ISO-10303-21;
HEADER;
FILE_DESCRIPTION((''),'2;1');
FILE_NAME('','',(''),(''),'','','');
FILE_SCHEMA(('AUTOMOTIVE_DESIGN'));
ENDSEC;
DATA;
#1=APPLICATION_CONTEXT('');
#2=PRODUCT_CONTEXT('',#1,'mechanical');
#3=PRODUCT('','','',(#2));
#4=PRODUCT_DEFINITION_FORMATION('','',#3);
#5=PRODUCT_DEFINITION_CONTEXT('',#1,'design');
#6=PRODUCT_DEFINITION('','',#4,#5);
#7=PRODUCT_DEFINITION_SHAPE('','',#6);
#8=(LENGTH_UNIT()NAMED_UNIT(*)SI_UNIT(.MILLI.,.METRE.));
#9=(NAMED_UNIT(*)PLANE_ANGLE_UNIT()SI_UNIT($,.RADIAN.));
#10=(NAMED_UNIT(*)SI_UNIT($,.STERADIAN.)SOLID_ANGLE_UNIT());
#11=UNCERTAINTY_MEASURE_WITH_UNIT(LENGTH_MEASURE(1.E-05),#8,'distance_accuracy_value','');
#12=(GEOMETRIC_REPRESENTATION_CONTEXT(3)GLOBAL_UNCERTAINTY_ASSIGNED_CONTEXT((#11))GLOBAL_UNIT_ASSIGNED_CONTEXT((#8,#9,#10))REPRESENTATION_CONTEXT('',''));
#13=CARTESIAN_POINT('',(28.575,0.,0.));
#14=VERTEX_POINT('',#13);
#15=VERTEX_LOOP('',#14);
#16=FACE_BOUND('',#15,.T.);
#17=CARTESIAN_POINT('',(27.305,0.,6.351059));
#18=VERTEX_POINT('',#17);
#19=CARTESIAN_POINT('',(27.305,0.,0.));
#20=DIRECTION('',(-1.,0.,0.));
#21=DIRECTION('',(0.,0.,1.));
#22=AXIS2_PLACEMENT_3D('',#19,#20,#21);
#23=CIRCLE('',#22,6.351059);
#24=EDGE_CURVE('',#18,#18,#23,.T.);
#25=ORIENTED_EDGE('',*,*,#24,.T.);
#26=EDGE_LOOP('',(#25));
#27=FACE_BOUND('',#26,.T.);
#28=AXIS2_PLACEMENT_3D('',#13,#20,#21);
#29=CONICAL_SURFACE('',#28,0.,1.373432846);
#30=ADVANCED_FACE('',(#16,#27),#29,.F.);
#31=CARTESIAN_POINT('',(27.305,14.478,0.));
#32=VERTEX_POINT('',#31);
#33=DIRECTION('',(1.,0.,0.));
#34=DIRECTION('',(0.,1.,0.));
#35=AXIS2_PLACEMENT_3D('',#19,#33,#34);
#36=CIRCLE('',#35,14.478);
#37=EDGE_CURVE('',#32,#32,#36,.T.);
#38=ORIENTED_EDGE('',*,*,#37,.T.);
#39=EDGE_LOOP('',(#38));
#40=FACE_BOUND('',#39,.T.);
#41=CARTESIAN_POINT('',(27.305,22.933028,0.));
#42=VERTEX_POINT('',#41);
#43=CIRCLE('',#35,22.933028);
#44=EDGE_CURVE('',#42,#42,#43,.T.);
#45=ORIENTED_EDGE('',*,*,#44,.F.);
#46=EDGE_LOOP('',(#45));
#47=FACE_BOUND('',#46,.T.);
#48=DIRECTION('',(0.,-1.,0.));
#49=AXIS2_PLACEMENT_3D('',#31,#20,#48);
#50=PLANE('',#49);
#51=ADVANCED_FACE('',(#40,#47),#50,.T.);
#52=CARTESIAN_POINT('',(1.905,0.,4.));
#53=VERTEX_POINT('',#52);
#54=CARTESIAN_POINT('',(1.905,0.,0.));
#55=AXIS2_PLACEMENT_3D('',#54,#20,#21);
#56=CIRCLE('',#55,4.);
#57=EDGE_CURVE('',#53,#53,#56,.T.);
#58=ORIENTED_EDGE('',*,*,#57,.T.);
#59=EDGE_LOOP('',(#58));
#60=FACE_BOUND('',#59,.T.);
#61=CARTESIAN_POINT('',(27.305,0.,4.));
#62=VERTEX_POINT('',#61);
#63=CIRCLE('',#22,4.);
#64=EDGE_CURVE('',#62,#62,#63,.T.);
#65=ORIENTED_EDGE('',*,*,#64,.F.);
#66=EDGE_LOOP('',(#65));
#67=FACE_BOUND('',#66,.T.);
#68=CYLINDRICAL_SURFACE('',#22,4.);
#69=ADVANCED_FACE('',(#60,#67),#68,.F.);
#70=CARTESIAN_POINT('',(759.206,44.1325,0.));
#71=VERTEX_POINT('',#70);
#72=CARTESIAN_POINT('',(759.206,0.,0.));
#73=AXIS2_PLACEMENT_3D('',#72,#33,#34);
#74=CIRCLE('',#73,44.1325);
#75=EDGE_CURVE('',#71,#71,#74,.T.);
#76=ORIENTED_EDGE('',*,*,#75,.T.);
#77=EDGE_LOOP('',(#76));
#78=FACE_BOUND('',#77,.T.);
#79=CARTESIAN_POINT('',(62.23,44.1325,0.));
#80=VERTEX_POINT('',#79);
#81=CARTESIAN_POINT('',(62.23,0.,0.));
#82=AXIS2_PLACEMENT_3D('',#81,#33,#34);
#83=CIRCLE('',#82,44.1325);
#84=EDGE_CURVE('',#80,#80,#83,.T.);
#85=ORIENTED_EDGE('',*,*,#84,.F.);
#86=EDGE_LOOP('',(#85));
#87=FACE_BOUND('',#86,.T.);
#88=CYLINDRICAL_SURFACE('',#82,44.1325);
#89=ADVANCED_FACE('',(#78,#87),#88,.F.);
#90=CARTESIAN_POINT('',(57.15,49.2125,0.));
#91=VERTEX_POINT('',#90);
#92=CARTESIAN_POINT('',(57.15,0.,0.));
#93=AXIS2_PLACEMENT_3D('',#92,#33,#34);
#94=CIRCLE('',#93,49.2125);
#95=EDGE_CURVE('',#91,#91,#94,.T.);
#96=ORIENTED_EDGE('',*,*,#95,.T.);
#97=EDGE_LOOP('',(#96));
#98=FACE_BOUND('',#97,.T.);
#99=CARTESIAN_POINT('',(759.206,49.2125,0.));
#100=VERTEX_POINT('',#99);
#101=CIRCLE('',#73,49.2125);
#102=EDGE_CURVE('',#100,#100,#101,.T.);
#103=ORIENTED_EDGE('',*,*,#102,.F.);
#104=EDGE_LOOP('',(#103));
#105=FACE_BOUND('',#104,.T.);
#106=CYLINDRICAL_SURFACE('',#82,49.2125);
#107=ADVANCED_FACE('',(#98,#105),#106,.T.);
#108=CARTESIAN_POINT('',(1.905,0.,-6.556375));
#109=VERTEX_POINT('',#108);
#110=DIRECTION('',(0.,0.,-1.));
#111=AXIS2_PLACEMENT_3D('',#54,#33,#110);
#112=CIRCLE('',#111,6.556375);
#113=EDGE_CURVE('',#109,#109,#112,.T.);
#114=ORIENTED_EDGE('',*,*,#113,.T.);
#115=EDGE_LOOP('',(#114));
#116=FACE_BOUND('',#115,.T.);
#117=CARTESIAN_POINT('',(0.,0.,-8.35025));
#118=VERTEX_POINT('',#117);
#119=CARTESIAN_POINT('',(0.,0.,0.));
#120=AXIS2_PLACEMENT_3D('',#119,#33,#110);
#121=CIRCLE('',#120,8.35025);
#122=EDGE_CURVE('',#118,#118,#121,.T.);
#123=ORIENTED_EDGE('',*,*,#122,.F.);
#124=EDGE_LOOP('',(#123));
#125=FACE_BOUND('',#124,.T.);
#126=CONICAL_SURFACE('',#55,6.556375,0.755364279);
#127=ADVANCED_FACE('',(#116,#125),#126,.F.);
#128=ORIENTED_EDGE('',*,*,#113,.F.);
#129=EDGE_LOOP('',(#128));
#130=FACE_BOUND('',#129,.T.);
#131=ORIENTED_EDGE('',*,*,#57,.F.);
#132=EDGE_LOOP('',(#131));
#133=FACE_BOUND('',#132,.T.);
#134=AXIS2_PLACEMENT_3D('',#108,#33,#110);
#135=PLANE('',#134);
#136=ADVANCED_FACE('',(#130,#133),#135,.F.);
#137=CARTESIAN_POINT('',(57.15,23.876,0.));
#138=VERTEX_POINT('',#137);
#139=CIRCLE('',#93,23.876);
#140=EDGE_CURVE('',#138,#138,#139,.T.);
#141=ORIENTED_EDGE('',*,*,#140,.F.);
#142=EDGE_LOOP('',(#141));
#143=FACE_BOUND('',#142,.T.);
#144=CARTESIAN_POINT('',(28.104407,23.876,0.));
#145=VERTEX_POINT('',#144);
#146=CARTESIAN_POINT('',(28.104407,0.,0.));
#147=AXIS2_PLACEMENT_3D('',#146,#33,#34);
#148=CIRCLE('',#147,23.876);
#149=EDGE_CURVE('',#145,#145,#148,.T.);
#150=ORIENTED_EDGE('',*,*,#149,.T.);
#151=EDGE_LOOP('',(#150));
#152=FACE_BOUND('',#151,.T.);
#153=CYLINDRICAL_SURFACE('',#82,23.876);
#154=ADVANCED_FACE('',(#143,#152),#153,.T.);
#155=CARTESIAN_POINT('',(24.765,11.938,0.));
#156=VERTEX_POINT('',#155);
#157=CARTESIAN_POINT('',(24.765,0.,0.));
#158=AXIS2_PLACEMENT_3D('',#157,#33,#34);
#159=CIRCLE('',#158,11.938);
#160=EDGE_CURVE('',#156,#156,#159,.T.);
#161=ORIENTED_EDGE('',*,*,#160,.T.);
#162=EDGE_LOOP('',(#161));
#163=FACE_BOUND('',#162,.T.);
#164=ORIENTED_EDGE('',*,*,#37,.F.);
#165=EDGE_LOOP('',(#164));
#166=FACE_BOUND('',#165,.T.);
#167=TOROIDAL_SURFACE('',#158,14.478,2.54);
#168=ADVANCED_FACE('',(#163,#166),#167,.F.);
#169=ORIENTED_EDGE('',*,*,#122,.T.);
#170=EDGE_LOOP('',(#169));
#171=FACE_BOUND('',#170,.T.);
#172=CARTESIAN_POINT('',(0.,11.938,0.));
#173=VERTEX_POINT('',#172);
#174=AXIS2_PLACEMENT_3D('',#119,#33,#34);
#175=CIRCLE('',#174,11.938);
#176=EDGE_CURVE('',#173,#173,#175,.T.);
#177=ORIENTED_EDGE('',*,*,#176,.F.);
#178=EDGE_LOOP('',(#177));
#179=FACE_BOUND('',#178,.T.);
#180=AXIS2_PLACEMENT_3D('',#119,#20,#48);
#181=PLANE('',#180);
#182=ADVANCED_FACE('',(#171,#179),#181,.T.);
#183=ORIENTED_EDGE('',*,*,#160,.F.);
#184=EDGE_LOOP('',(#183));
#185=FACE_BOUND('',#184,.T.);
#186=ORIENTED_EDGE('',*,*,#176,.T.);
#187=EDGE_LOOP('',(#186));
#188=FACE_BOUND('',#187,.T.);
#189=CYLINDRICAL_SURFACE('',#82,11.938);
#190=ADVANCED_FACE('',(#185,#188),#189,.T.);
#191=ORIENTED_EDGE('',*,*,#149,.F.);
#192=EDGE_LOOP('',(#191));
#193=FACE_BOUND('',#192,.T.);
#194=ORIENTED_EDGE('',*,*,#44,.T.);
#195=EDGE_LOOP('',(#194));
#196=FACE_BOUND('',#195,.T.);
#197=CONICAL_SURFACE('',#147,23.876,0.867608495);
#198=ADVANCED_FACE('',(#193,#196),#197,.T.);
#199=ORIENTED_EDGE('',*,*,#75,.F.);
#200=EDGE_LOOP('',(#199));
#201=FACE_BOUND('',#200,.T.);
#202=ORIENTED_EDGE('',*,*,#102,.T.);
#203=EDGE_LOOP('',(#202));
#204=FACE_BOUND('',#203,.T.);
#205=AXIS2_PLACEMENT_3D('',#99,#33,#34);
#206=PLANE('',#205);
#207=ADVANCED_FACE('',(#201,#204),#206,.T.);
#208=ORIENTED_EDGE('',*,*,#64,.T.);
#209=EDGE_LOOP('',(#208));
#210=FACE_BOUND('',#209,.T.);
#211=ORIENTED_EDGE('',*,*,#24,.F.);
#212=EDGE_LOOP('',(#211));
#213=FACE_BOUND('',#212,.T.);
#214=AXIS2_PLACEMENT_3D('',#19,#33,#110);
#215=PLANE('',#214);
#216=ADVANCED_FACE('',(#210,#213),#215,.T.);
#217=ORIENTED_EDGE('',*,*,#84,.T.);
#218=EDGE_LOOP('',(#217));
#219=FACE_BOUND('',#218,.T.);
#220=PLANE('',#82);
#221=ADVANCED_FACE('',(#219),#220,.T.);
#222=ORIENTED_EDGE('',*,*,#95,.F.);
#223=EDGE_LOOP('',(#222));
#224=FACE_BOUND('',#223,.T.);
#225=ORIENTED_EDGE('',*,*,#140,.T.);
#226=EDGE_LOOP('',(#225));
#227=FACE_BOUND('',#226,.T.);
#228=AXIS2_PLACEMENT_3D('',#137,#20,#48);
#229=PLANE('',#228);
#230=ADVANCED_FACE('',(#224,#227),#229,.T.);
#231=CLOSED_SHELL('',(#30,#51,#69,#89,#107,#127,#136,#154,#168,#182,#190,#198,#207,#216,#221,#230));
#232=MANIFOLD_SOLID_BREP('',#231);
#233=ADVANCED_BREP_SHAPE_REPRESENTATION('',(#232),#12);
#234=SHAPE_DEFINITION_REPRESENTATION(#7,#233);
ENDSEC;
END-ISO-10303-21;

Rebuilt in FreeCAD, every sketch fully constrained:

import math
import FreeCAD as App
import Part
import Sketcher

V = App.Vector
Q = App.Units.Quantity


def add_polygon(sketch, points):
    """Adds a closed chain of lines whose ends are joined by coincident constraints."""
    first, n = sketch.GeometryCount, len(points)
    for a, b in zip(points, points[1:] + points[:1]):
        sketch.addGeometry(Part.LineSegment(App.Vector(*a, 0), App.Vector(*b, 0)), False)
    for i in range(n):
        sketch.addConstraint(Sketcher.Constraint("Coincident", first + i, 2, first + (i + 1) % n, 1))

doc = App.newDocument("Part")
body = doc.addObject("PartDesign::Body", "Body")

sketch1 = body.newObject("Sketcher::SketchObject", "Sketch")
sketch1.AttachmentSupport = (doc.getObject("XY_Plane"), [""])
sketch1.MapMode = "FlatFace"
sketch1.addGeometry([
    Part.LineSegment(V(0, 11.938, 0), V(0, 0, 0)),
    Part.LineSegment(V(0, 0, 0), V(62.23, 0, 0)),
    Part.LineSegment(V(62.23, 0, 0), V(62.23, 44.1325, 0)),
    Part.LineSegment(V(62.23, 44.1325, 0), V(759.206, 44.1325, 0)),
    Part.LineSegment(V(759.206, 44.1325, 0), V(759.206, 49.2125, 0)),
    Part.LineSegment(V(759.206, 49.2125, 0), V(57.15, 49.2125, 0)),
    Part.LineSegment(V(57.15, 49.2125, 0), V(57.15, 23.876, 0)),
    Part.LineSegment(V(57.15, 23.876, 0), V(28.104407, 23.876, 0)),
    Part.LineSegment(V(28.104407, 23.876, 0), V(27.305, 22.933028, 0)),
    Part.LineSegment(V(27.305, 22.933028, 0), V(27.305, 14.478, 0)),
    Part.ArcOfCircle(Part.Circle(V(24.765, 14.478, 0), V(0, 0, 1), 2.54), math.radians(-90), math.radians(0)),
    Part.LineSegment(V(24.765, 11.938, 0), V(0, 11.938, 0)),
], False)
sketch1.addConstraint([
    Sketcher.Constraint("Coincident", 0, 2, 1, 1),
    Sketcher.Constraint("Coincident", 1, 2, 2, 1),
    Sketcher.Constraint("Coincident", 2, 2, 3, 1),
    Sketcher.Constraint("Coincident", 3, 2, 4, 1),
    Sketcher.Constraint("Coincident", 4, 2, 5, 1),
    Sketcher.Constraint("Coincident", 5, 2, 6, 1),
    Sketcher.Constraint("Coincident", 6, 2, 7, 1),
    Sketcher.Constraint("Coincident", 7, 2, 8, 1),
    Sketcher.Constraint("Coincident", 8, 2, 9, 1),
    Sketcher.Constraint("Tangent", 9, 2, 10, 2),
    Sketcher.Constraint("Tangent", 10, 1, 11, 1),
    Sketcher.Constraint("Coincident", 11, 2, 0, 1),
    Sketcher.Constraint("Vertical", 0),
    Sketcher.Constraint("Horizontal", 1),
    Sketcher.Constraint("Vertical", 2),
    Sketcher.Constraint("Horizontal", 3),
    Sketcher.Constraint("Vertical", 4),
    Sketcher.Constraint("Horizontal", 5),
    Sketcher.Constraint("Vertical", 6),
    Sketcher.Constraint("Horizontal", 7),
    Sketcher.Constraint("Vertical", 9),
    Sketcher.Constraint("Horizontal", 11),
    Sketcher.Constraint("Coincident", 0, 2, -1, 1),
    Sketcher.Constraint("Radius", 10, Q("0.1 in")),
    Sketcher.Constraint("DistanceY", 4, 1, 4, 2, Q("0.2 in")),
    Sketcher.Constraint("DistanceX", 1, 1, 1, 2, Q("2.45 in")),
    Sketcher.Constraint("DistanceX", 3, 1, 3, 2, Q("27.44 in")),
    Sketcher.Constraint("DistanceX", 5, 2, 5, 1, Q("27.64 in")),
    Sketcher.Constraint("DistanceY", 0, 2, 0, 1, Q("0.47 in")),
    Sketcher.Constraint("DistanceX", 11, 2, 11, 1, Q("0.975 in")),
    Sketcher.Constraint("DistanceY", -1, 1, 6, 2, Q("0.94 in")),
    Sketcher.Constraint("DistanceY", 2, 1, 2, 2, Q("1.7375 in")),
    Sketcher.Constraint("DistanceY", 9, 2, 9, 1, Q("8.455028 mm")),
    Sketcher.Constraint("DistanceX", 7, 2, 7, 1, Q("29.045593 mm")),
])
revolution = body.newObject("PartDesign::Revolution", "Revolution")
revolution.Profile = sketch1
revolution.ReferenceAxis = (sketch1, ["H_Axis"])
revolution.Angle = 360

sketch2 = body.newObject("Sketcher::SketchObject", "Sketch001")
sketch2.AttachmentSupport = (doc.getObject("XZ_Plane"), [""])
sketch2.MapMode = "FlatFace"
add_polygon(sketch2, [(0, -8.35025), (0, 0), (1.905, 0), (1.905, -6.556375)])
sketch2.addConstraint([
    Sketcher.Constraint("Vertical", 0),
    Sketcher.Constraint("Horizontal", 1),
    Sketcher.Constraint("Vertical", 2),
    Sketcher.Constraint("Coincident", 0, 2, -1, 1),
    Sketcher.Constraint("DistanceX", 1, 1, 1, 2, Q("0.075 in")),
    Sketcher.Constraint("DistanceY", 0, 1, 0, 2, Q("8.35025 mm")),
    Sketcher.Constraint("Distance", 3, Q("2.61668 mm")),
])
groove = body.newObject("PartDesign::Groove", "Groove")
groove.Profile = sketch2
groove.ReferenceAxis = (sketch2, ["H_Axis"])
groove.Angle = 360

sketch3 = body.newObject("Sketcher::SketchObject", "Sketch002")
sketch3.AttachmentSupport = (doc.getObject("YZ_Plane"), [""])
sketch3.MapMode = "FlatFace"
sketch3.AttachmentOffset = App.Placement(V(0, 0, 0.075 * 25.4), App.Rotation())
sketch3.addGeometry(Part.Circle(V(0, 0, 0), V(0, 0, 1), 4), False)
sketch3.addConstraint([
    Sketcher.Constraint("Coincident", 0, 3, -1, 1),
    Sketcher.Constraint("Diameter", 0, Q("8 mm")),
])
pocket1 = body.newObject("PartDesign::Pocket", "Pocket")
pocket1.Profile = sketch3
pocket1.Length = Q("1 in")
pocket1.Reversed = True

sketch4 = body.newObject("Sketcher::SketchObject", "Sketch003")
sketch4.AttachmentSupport = (doc.getObject("XZ_Plane"), [""])
sketch4.MapMode = "FlatFace"
add_polygon(sketch4, [(27.305, 0), (28.575, 0), (27.305, -6.351059)])
sketch4.addConstraint([
    Sketcher.Constraint("Horizontal", 0),
    Sketcher.Constraint("Vertical", 2),
    Sketcher.Constraint("PointOnObject", 0, 2, -1),
    Sketcher.Constraint("DistanceX", 0, 1, 0, 2, Q("0.05 in")),
    Sketcher.Constraint("DistanceX", -1, 1, 0, 2, Q("1.125 in")),
    Sketcher.Constraint("DistanceY", 2, 1, 2, 2, Q("6.351059 mm")),
])
groove2 = body.newObject("PartDesign::Groove", "Groove001")
groove2.Profile = sketch4
groove2.ReferenceAxis = (sketch4, ["H_Axis"])
groove2.Angle = 360

doc.recompute()
